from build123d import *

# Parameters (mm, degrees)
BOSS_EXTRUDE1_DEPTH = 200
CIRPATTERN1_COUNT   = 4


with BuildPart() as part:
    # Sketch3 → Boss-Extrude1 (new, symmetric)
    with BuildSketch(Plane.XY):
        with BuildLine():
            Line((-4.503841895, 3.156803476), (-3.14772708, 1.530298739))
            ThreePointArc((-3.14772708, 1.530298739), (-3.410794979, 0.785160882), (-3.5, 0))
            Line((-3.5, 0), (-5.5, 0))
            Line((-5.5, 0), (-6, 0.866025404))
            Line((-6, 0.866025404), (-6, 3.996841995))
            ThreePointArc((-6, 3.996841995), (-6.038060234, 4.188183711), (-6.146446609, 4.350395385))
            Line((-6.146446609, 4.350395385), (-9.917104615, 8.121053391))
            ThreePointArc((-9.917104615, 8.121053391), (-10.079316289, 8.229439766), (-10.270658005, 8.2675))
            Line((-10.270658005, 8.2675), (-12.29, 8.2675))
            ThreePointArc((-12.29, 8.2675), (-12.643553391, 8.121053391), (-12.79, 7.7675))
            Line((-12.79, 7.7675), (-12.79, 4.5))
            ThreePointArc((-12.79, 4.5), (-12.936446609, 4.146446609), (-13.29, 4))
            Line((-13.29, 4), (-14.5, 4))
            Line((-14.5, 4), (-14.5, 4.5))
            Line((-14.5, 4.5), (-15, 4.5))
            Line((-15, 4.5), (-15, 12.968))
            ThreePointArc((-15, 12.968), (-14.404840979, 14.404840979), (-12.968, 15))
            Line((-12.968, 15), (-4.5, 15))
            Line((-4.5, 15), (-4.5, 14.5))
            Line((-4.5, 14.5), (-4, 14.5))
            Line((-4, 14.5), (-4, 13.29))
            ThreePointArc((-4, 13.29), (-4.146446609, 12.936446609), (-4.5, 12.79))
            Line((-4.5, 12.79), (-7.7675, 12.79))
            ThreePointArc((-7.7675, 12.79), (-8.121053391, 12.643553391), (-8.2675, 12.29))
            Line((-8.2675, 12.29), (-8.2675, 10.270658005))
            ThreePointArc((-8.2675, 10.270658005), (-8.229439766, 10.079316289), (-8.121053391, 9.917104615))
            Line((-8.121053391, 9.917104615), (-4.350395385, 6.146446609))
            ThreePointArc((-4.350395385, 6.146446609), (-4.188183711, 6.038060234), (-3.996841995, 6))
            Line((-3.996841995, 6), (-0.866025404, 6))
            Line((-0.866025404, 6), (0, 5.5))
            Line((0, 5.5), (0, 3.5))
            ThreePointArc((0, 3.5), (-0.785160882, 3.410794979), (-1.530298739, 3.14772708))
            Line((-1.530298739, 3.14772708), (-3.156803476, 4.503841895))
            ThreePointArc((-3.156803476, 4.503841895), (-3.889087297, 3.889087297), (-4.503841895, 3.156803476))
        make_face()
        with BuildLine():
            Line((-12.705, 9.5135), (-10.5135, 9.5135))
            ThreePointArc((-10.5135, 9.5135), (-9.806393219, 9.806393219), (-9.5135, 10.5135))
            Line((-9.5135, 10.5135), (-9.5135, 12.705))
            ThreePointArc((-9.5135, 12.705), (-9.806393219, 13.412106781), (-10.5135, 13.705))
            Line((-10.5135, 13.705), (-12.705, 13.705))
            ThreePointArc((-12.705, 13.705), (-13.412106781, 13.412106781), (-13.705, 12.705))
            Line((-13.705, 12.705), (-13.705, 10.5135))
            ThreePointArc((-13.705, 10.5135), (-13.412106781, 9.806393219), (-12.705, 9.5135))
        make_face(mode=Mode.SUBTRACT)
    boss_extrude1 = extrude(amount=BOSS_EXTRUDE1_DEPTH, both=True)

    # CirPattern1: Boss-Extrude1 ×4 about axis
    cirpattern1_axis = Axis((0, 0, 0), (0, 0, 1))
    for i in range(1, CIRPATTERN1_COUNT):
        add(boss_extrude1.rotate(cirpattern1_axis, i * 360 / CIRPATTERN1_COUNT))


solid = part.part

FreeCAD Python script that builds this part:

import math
import FreeCAD as App
import Part
import Sketcher
from FreeCAD import Vector
Q = App.Units.Quantity

doc = App.newDocument("Part")
params = doc.addObject("Spreadsheet::Sheet", "Params")
for row, (alias, value) in enumerate([
    ("sketch1_radius", "1 mm"),
    ("sketch1_radius2", "5.5 mm"),
    ("sketch1_radius3", "3.5 mm"),
    ("sketch1_radius4", "0.5 mm"),
    ("sketch1_width", "2 mm"),
    ("pad1_length", "400 mm"),
], start=1):
    params.set(f"A{row}", alias)
    params.set(f"B{row}", "=" + value)
    params.setAlias(f"B{row}", alias)

body = doc.addObject("PartDesign::Body", "Body")

# Sketch on XY plane
sketch1 = body.newObject("Sketcher::SketchObject", "Sketch")
sketch1.AttachmentSupport = (doc.getObject("XY_Plane"), [""])
sketch1.MapMode = "FlatFace"
sketch1.addGeometry([
    Part.LineSegment(Vector(-3.15, 1.53, 0), Vector(-4.5, 3.16, 0)),  # 0
    Part.ArcOfCircle(Part.Circle(Vector(0, 0, 0), Vector(0, 0, 1), 5.5), math.radians(125.03), math.radians(144.97)),  # 1
    Part.LineSegment(Vector(-3.16, 4.5, 0), Vector(-1.53, 3.15, 0)),  # 2
    Part.ArcOfCircle(Part.Circle(Vector(0, 0, 0), Vector(0, 0, 1), 3.5), math.radians(90), math.radians(116)),  # 3
    Part.LineSegment(Vector(0, 3.5, 0), Vector(0, 5.5, 0)),  # 4
    Part.LineSegment(Vector(0, 5.5, 0), Vector(-0.87, 6, 0)),  # 5
    Part.LineSegment(Vector(-0.87, 6, 0), Vector(-4, 6, 0)),  # 6
    Part.ArcOfCircle(Part.Circle(Vector(-4, 6.5, 0), Vector(0, 0, 1), 0.5), math.radians(-135), math.radians(-90)),  # 7
    Part.LineSegment(Vector(-4.35, 6.15, 0), Vector(-8.12, 9.92, 0)),  # 8
    Part.ArcOfCircle(Part.Circle(Vector(-7.77, 10.27, 0), Vector(0, 0, 1), 0.5), math.radians(-180), math.radians(-135)),  # 9
    Part.LineSegment(Vector(-8.27, 10.27, 0), Vector(-8.27, 12.29, 0)),  # 10
    Part.ArcOfCircle(Part.Circle(Vector(-7.77, 12.29, 0), Vector(0, 0, 1), 0.5), math.radians(90), math.radians(180)),  # 11
    Part.LineSegment(Vector(-7.77, 12.79, 0), Vector(-4.5, 12.79, 0)),  # 12
    Part.ArcOfCircle(Part.Circle(Vector(-4.5, 13.29, 0), Vector(0, 0, 1), 0.5), math.radians(-90), math.radians(0)),  # 13
    Part.LineSegment(Vector(-4, 13.29, 0), Vector(-4, 14.5, 0)),  # 14
    Part.LineSegment(Vector(-4, 14.5, 0), Vector(-4.5, 14.5, 0)),  # 15
    Part.LineSegment(Vector(-4.5, 14.5, 0), Vector(-4.5, 15, 0)),  # 16
    Part.LineSegment(Vector(-4.5, 15, 0), Vector(-12.97, 15, 0)),  # 17
    Part.ArcOfCircle(Part.Circle(Vector(-12.97, 12.97, 0), Vector(0, 0, 1), 2.03), math.radians(90), math.radians(180)),  # 18
    Part.LineSegment(Vector(-15, 12.97, 0), Vector(-15, 4.5, 0)),  # 19
    Part.LineSegment(Vector(-15, 4.5, 0), Vector(-14.5, 4.5, 0)),  # 20
    Part.LineSegment(Vector(-14.5, 4.5, 0), Vector(-14.5, 4, 0)),  # 21
    Part.LineSegment(Vector(-14.5, 4, 0), Vector(-13.29, 4, 0)),  # 22
    Part.ArcOfCircle(Part.Circle(Vector(-13.29, 4.5, 0), Vector(0, 0, 1), 0.5), math.radians(-90), math.radians(0)),  # 23
    Part.LineSegment(Vector(-12.79, 4.5, 0), Vector(-12.79, 7.77, 0)),  # 24
    Part.ArcOfCircle(Part.Circle(Vector(-12.29, 7.77, 0), Vector(0, 0, 1), 0.5), math.radians(90), math.radians(180)),  # 25
    Part.LineSegment(Vector(-12.29, 8.27, 0), Vector(-10.27, 8.27, 0)),  # 26
    Part.ArcOfCircle(Part.Circle(Vector(-10.27, 7.77, 0), Vector(0, 0, 1), 0.5), math.radians(45), math.radians(90)),  # 27
    Part.LineSegment(Vector(-9.92, 8.12, 0), Vector(-6.15, 4.35, 0)),  # 28
    Part.ArcOfCircle(Part.Circle(Vector(-6.5, 4, 0), Vector(0, 0, 1), 0.5), math.radians(0), math.radians(45)),  # 29
    Part.LineSegment(Vector(-6, 4, 0), Vector(-6, 0.87, 0)),  # 30
    Part.LineSegment(Vector(-6, 0.87, 0), Vector(-5.5, 0, 0)),  # 31
    Part.LineSegment(Vector(-5.5, 0, 0), Vector(-3.5, 0, 0)),  # 32
    Part.ArcOfCircle(Part.Circle(Vector(0, 0, 0), Vector(0, 0, 1), 3.5), math.radians(154), math.radians(180)),  # 33
    Part.ArcOfCircle(Part.Circle(Vector(-12.7, 10.51, 0), Vector(0, 0, 1), 1), math.radians(-180), math.radians(-90)),  # 34
    Part.LineSegment(Vector(-13.71, 10.51, 0), Vector(-13.71, 12.71, 0)),  # 35
    Part.ArcOfCircle(Part.Circle(Vector(-12.7, 12.7, 0), Vector(0, 0, 1), 1), math.radians(90), math.radians(180)),  # 36
    Part.LineSegment(Vector(-12.71, 13.71, 0), Vector(-10.51, 13.71, 0)),  # 37
    Part.ArcOfCircle(Part.Circle(Vector(-10.51, 12.7, 0), Vector(0, 0, 1), 1), math.radians(0), math.radians(90)),  # 38
    Part.LineSegment(Vector(-9.51, 12.71, 0), Vector(-9.51, 10.51, 0)),  # 39
    Part.ArcOfCircle(Part.Circle(Vector(-10.51, 10.51, 0), Vector(0, 0, 1), 1), math.radians(-90), math.radians(0)),  # 40
    Part.LineSegment(Vector(-10.51, 9.51, 0), Vector(-12.71, 9.51, 0)),  # 41
], False)
sketch1.addConstraint([
    Sketcher.Constraint("Coincident", 0, 2, 1, 2),
    Sketcher.Constraint("Coincident", 1, 1, 2, 1),
    Sketcher.Constraint("Coincident", 2, 2, 3, 2),
    Sketcher.Constraint("Coincident", 3, 1, 4, 1),
    Sketcher.Constraint("Coincident", 4, 2, 5, 1),
    Sketcher.Constraint("Coincident", 5, 2, 6, 1),
    Sketcher.Constraint("Tangent", 6, 2, 7, 2),
    Sketcher.Constraint("Tangent", 7, 1, 8, 1),
    Sketcher.Constraint("Tangent", 8, 2, 9, 2),
    Sketcher.Constraint("Tangent", 9, 1, 10, 1),
    Sketcher.Constraint("Tangent", 10, 2, 11, 2),
    Sketcher.Constraint("Tangent", 11, 1, 12, 1),
    Sketcher.Constraint("Tangent", 12, 2, 13, 1),
    Sketcher.Constraint("Tangent", 13, 2, 14, 1),
    Sketcher.Constraint("Coincident", 14, 2, 15, 1),
    Sketcher.Constraint("Coincident", 15, 2, 16, 1),
    Sketcher.Constraint("Coincident", 16, 2, 17, 1),
    Sketcher.Constraint("Tangent", 17, 2, 18, 1),
    Sketcher.Constraint("Tangent", 18, 2, 19, 1),
    Sketcher.Constraint("Coincident", 19, 2, 20, 1),
    Sketcher.Constraint("Coincident", 20, 2, 21, 1),
    Sketcher.Constraint("Coincident", 21, 2, 22, 1),
    Sketcher.Constraint("Tangent", 22, 2, 23, 1),
    Sketcher.Constraint("Tangent", 23, 2, 24, 1),
    Sketcher.Constraint("Tangent", 24, 2, 25, 2),
    Sketcher.Constraint("Tangent", 25, 1, 26, 1),
    Sketcher.Constraint("Tangent", 26, 2, 27, 2),
    Sketcher.Constraint("Tangent", 27, 1, 28, 1),
    Sketcher.Constraint("Tangent", 28, 2, 29, 2),
    Sketcher.Constraint("Tangent", 29, 1, 30, 1),
    Sketcher.Constraint("Coincident", 30, 2, 31, 1),
    Sketcher.Constraint("Coincident", 31, 2, 32, 1),
    Sketcher.Constraint("Coincident", 32, 2, 33, 2),
    Sketcher.Constraint("Coincident", 33, 1, 0, 1),
    Sketcher.Constraint("Tangent", 34, 1, 35, 1),
    Sketcher.Constraint("Tangent", 35, 2, 36, 2),
    Sketcher.Constraint("Tangent", 36, 1, 37, 1),
    Sketcher.Constraint("Tangent", 37, 2, 38, 2),
    Sketcher.Constraint("Tangent", 38, 1, 39, 1),
    Sketcher.Constraint("Tangent", 39, 2, 40, 2),
    Sketcher.Constraint("Tangent", 40, 1, 41, 1),
    Sketcher.Constraint("Tangent", 41, 2, 34, 2),
    Sketcher.Constraint("Vertical", 4),
    Sketcher.Constraint("Horizontal", 6),
    Sketcher.Constraint("Vertical", 10),
    Sketcher.Constraint("Horizontal", 12),
    Sketcher.Constraint("Vertical", 14),
    Sketcher.Constraint("Horizontal", 15),
    Sketcher.Constraint("Vertical", 16),
    Sketcher.Constraint("Horizontal", 17),
    Sketcher.Constraint("Vertical", 19),
    Sketcher.Constraint("Horizontal", 20),
    Sketcher.Constraint("Vertical", 21),
    Sketcher.Constraint("Horizontal", 22),
    Sketcher.Constraint("Vertical", 24),
    Sketcher.Constraint("Horizontal", 26),
    Sketcher.Constraint("Vertical", 30),
    Sketcher.Constraint("Horizontal", 32),
    Sketcher.Constraint("Vertical", 35),
    Sketcher.Constraint("Horizontal", 37),
    Sketcher.Constraint("Vertical", 39),
    Sketcher.Constraint("Horizontal", 41),
    Sketcher.Constraint("Coincident", 1, 3, -1, 1),
    Sketcher.Constraint("Coincident", 3, 3, -1, 1),
    Sketcher.Constraint("Coincident", 33, 3, -1, 1),
    Sketcher.Constraint("Equal", 7, 9),
    Sketcher.Constraint("Equal", 9, 11),
    Sketcher.Constraint("Equal", 11, 13),
    Sketcher.Constraint("Equal", 13, 23),
    Sketcher.Constraint("Equal", 23, 25),
    Sketcher.Constraint("Equal", 25, 27),
    Sketcher.Constraint("Equal", 27, 29),
    Sketcher.Constraint("Equal", 3, 33),
    Sketcher.Constraint("Equal", 34, 36),
    Sketcher.Constraint("Equal", 36, 38),
    Sketcher.Constraint("Equal", 38, 40),
    Sketcher.Constraint("PointOnObject", 3, 1, -2),
    Sketcher.Constraint("PointOnObject", 31, 2, -1),
    Sketcher.Constraint("Parallel", 8, 28),
    Sketcher.Constraint("Horizontal", 23, 3, 19, 2),
    Sketcher.Constraint("Vertical", 12, 2, 15, 2),
    Sketcher.Constraint("Equal", 15, 20),
    Sketcher.Constraint("Equal", 32, 4),
    Sketcher.Constraint("Equal", 26, 10),
    Sketcher.Constraint("Equal", 22, 14),
    Sketcher.Constraint("Equal", 20, 16),
    Sketcher.Constraint("Equal", 17, 19),
    Sketcher.Constraint("Equal", 12, 24),
    Sketcher.Constraint("Equal", 6, 30),
    Sketcher.Constraint("Equal", 41, 35),
    Sketcher.Constraint("Equal", 0, 2),
    Sketcher.Constraint("Equal", 8, 28),
    Sketcher.Constraint("Equal", 5, 31),
    Sketcher.Constraint("Radius", 34, Q("1 mm")),
    Sketcher.Constraint("Radius", 1, Q("5.5 mm")),
    Sketcher.Constraint("Radius", 3, Q("3.5 mm")),
    Sketcher.Constraint("Radius", 7, Q("0.5 mm")),
    Sketcher.Constraint("DistanceX", 32, 1, 32, 2, Q("2 mm")),
    Sketcher.Constraint("Angle", 5, Q("150 deg")),
    Sketcher.Constraint("Angle", 8, Q("135 deg")),
    Sketcher.Constraint("Distance", 5, Q("1 mm")),
    Sketcher.Constraint("DistanceX", 13, 2, -1, 1, Q("4 mm")),
    Sketcher.Constraint("DistanceY", -1, 1, 16, 2, Q("15 mm")),
    Sketcher.Constraint("Radius", 18, Q("2.032 mm")),
    Sketcher.Constraint("DistanceX", 22, 1, 22, 2, Q("1.21 mm")),
    Sketcher.Constraint("Angle", 0, Q("129.82 deg")),
    Sketcher.Constraint("Angle", 2, Q("-39.82 deg")),
    Sketcher.Constraint("DistanceX", 12, 1, 12, 2, Q("3.2675 mm")),
    Sketcher.Constraint("DistanceX", 37, 1, 37, 2, Q("2.1915 mm")),
    Sketcher.Constraint("DistanceX", 34, 3, -1, 1, Q("12.705 mm")),
    Sketcher.Constraint("DistanceY", -1, 1, 36, 3, Q("12.705 mm")),
    Sketcher.Constraint("DistanceX", 0, 2, 7, 3, Q("0.507 mm")),
    Sketcher.Constraint("DistanceX", 26, 1, 26, 2, Q("2.019342 mm")),
])
sketch1.setExpression("Constraints[93]", "Params.sketch1_radius")
sketch1.setExpression("Constraints[94]", "Params.sketch1_radius2")
sketch1.setExpression("Constraints[95]", "Params.sketch1_radius3")
sketch1.setExpression("Constraints[96]", "Params.sketch1_radius4")
sketch1.setExpression("Constraints[97]", "Params.sketch1_width")
pad1 = body.newObject("PartDesign::Pad", "Pad")
pad1.Profile = sketch1
pad1.setExpression("Length", "Params.pad1_length")
pad1.Midplane = True
doc.recompute()

polarpattern = body.newObject("PartDesign::PolarPattern", "PolarPattern")
polarpattern.Originals = [pad1]
polarpattern.Axis = (doc.getObject("Z_Axis"), [""])
polarpattern.Angle = 360
polarpattern.Occurrences = 4
body.Tip = polarpattern

doc.recompute()
